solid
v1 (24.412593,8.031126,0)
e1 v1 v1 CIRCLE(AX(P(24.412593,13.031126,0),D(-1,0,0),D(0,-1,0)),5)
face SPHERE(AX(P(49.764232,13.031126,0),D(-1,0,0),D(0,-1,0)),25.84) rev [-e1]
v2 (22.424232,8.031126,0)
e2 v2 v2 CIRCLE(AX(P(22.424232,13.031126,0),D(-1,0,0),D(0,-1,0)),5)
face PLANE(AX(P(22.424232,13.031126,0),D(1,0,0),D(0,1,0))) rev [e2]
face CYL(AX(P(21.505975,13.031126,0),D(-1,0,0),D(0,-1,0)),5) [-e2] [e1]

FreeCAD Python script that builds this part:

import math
import FreeCAD as App
import Part
import Sketcher

V = App.Vector

doc = App.newDocument("Part")
params = doc.addObject("Spreadsheet::Sheet", "Params")
for row, (alias, value) in enumerate([
    ("sketch1_height", "5 mm"),
    ("sketch1_radius", "25.84 mm"),
    ("sketch1_width", "1.5 mm"),
    ("revolution_angle", "360 deg"),
], start=1):
    params.set(f"A{row}", alias)
    params.set(f"B{row}", "=" + value)
    params.setAlias(f"B{row}", alias)

body = doc.addObject("PartDesign::Body", "Body")

sketch1 = body.newObject("Sketcher::SketchObject", "Sketch")
sketch1.AttachmentSupport = (doc.getObject("XY_Plane"), [""])
sketch1.MapMode = "FlatFace"
sketch1.addGeometry([
    Part.LineSegment(V(22.424232, 18.031126, 0), V(22.424232, 13.031126, 0)),
    Part.LineSegment(V(22.424232, 13.031126, 0), V(23.924232, 13.031126, 0)),
    Part.ArcOfCircle(Part.Circle(V(49.764232, 13.031126, 0), V(0, 0, 1), 25.84), math.radians(168.842979), math.radians(180)),
    Part.LineSegment(V(24.412593, 18.031126, 0), V(22.424232, 18.031126, 0)),
], False)
sketch1.addGeometry(Part.LineSegment(V(22.424232, 13.031126, 0), V(49.764232, 13.031126, 0)), True)
sketch1.addConstraint([
    Sketcher.Constraint("Coincident", 0, 2, 1, 1),
    Sketcher.Constraint("Coincident", 1, 2, 2, 2),
    Sketcher.Constraint("Coincident", 2, 1, 3, 1),
    Sketcher.Constraint("Coincident", 3, 2, 0, 1),
    Sketcher.Constraint("Vertical", 0),
    Sketcher.Constraint("Horizontal", 1),
    Sketcher.Constraint("Horizontal", 3),
    Sketcher.Constraint("Horizontal", 4),
    Sketcher.Constraint("Coincident", 4, 1, 0, 2),
    Sketcher.Constraint("Coincident", 4, 2, 2, 3),
    Sketcher.Constraint("DistanceY", 0, 2, 0, 1, 5.0),
    Sketcher.Constraint("Radius", 2, 25.84),
    Sketcher.Constraint("DistanceX", 1, 1, 1, 2, 1.5),
    Sketcher.Constraint("DistanceX", -1, 1, 2, 3, 49.764232),
    Sketcher.Constraint("DistanceY", -1, 1, 2, 3, 13.031126),
])
sketch1.setExpression("Constraints[10]", "Params.sketch1_height")
sketch1.setExpression("Constraints[11]", "Params.sketch1_radius")
sketch1.setExpression("Constraints[12]", "Params.sketch1_width")
revolution = body.newObject("PartDesign::Revolution", "Revolution")
revolution.Profile = sketch1
revolution.ReferenceAxis = (sketch1, ["Axis0"])
revolution.setExpression("Angle", "Params.revolution_angle")

doc.recompute()
